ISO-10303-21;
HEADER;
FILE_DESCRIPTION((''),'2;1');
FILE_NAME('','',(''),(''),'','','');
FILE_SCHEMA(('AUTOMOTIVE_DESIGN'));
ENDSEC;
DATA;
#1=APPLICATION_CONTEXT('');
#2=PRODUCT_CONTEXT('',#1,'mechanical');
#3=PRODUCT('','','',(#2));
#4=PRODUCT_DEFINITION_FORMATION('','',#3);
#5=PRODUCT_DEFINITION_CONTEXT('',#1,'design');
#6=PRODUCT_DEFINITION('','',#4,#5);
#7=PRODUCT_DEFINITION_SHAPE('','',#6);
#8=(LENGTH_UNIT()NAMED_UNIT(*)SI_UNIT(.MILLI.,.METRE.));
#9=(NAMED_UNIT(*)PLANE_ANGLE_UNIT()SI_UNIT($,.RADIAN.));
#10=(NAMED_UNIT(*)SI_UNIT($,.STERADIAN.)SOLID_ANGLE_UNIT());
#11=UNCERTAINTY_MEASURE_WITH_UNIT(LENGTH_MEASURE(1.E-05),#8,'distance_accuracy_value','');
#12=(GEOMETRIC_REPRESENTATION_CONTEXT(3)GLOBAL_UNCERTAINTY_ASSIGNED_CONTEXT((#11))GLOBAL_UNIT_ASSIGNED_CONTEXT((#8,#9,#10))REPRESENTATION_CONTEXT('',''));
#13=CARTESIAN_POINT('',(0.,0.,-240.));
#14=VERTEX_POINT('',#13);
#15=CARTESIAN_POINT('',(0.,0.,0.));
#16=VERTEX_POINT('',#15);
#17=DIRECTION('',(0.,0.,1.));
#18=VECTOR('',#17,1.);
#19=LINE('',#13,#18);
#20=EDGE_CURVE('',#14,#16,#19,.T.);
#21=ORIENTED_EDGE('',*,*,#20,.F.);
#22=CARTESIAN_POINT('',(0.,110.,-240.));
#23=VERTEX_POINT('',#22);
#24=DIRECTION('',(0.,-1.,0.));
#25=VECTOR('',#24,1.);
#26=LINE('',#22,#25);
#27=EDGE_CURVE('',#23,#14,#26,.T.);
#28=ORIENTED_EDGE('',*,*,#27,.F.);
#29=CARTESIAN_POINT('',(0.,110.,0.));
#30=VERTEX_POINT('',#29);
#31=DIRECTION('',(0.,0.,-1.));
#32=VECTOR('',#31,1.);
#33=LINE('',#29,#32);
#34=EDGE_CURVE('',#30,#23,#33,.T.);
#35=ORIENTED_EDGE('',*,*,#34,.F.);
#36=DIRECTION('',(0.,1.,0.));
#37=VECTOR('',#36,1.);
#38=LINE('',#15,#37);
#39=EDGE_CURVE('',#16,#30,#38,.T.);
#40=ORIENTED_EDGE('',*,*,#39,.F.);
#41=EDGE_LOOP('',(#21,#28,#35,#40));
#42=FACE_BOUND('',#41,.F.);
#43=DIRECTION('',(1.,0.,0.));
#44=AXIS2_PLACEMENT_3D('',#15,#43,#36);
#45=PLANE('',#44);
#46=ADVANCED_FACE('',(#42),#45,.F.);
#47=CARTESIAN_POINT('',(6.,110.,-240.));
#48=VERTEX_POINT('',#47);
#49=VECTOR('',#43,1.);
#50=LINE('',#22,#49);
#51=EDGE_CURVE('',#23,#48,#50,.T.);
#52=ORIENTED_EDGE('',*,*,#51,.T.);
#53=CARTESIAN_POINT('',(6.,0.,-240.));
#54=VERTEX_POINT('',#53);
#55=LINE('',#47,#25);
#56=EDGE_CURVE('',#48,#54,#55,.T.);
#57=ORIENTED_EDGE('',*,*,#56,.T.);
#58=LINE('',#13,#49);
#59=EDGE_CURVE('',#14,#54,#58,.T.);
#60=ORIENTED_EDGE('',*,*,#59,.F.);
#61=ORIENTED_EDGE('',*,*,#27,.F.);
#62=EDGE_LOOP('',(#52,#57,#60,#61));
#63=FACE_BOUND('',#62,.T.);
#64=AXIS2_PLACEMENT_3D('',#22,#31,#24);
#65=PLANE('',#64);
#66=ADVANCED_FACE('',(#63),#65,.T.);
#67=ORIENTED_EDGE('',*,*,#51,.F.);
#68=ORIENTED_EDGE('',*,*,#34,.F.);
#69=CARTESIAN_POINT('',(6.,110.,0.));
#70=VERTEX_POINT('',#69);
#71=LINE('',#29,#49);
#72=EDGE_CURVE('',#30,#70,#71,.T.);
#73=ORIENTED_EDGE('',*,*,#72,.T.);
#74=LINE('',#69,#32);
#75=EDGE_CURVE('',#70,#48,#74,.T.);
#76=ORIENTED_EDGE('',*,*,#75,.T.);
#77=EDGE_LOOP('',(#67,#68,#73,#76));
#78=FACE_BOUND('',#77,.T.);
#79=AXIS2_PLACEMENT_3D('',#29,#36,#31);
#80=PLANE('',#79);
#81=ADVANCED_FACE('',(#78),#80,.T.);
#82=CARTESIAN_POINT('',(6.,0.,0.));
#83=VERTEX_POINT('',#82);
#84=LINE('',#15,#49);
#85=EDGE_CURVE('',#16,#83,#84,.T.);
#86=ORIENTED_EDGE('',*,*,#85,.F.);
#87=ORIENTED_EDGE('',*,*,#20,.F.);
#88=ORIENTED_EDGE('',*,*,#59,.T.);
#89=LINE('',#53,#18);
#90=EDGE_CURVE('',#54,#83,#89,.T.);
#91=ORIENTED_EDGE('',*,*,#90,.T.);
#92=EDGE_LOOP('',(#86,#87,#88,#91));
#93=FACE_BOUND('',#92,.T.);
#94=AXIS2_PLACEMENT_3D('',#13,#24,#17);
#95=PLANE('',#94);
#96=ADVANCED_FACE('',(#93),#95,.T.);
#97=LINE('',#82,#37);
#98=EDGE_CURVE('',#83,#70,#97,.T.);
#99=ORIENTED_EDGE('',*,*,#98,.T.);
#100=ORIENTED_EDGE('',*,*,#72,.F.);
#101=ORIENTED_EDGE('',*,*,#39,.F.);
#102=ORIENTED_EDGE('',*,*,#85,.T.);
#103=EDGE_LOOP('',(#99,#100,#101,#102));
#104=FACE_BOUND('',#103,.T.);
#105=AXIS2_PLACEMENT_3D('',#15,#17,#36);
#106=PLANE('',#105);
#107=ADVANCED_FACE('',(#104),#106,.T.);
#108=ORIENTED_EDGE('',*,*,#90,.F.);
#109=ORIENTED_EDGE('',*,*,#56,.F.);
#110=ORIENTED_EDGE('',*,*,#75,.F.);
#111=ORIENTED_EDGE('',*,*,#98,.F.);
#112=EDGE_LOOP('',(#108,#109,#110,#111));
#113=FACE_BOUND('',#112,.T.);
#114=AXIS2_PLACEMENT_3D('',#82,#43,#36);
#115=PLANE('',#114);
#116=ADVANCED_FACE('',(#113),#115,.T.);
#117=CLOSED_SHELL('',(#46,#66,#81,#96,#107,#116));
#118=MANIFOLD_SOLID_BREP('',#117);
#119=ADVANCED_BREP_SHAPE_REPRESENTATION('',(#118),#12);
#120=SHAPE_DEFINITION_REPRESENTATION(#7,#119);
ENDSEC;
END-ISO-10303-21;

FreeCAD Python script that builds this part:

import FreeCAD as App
import Part
import Sketcher

V = App.Vector
Q = App.Units.Quantity


def add_polygon(sketch, points):
    """Adds a closed chain of lines whose ends are joined by coincident constraints."""
    first, n = sketch.GeometryCount, len(points)
    for a, b in zip(points, points[1:] + points[:1]):
        sketch.addGeometry(Part.LineSegment(App.Vector(*a, 0), App.Vector(*b, 0)), False)
    for i in range(n):
        sketch.addConstraint(Sketcher.Constraint("Coincident", first + i, 2, first + (i + 1) % n, 1))

doc = App.newDocument("Part")
body = doc.addObject("PartDesign::Body", "Body")

sketch1 = doc.addObject("Sketcher::SketchObject", "Sketch")
body.addObject(sketch1)
sketch1.AttachmentSupport = (doc.YZ_Plane, [""])
sketch1.MapMode = "FlatFace"
add_polygon(sketch1, [(110, 0), (0, 0), (0, -240), (110, -240)])
sketch1.addConstraint([
    Sketcher.Constraint("Horizontal", 0),
    Sketcher.Constraint("Vertical", 1),
    Sketcher.Constraint("Horizontal", 2),
    Sketcher.Constraint("Vertical", 3),
    Sketcher.Constraint("Coincident", 0, 2, -1, 1),
    Sketcher.Constraint("DistanceX", 0, 2, 0, 1, Q("110 mm")),
    Sketcher.Constraint("DistanceY", 1, 2, 1, 1, Q("240 mm")),
])
pad1 = doc.addObject("PartDesign::Pad", "Pad")
body.addObject(pad1)
pad1.Profile = sketch1
pad1.Length = 6

doc.recompute()
